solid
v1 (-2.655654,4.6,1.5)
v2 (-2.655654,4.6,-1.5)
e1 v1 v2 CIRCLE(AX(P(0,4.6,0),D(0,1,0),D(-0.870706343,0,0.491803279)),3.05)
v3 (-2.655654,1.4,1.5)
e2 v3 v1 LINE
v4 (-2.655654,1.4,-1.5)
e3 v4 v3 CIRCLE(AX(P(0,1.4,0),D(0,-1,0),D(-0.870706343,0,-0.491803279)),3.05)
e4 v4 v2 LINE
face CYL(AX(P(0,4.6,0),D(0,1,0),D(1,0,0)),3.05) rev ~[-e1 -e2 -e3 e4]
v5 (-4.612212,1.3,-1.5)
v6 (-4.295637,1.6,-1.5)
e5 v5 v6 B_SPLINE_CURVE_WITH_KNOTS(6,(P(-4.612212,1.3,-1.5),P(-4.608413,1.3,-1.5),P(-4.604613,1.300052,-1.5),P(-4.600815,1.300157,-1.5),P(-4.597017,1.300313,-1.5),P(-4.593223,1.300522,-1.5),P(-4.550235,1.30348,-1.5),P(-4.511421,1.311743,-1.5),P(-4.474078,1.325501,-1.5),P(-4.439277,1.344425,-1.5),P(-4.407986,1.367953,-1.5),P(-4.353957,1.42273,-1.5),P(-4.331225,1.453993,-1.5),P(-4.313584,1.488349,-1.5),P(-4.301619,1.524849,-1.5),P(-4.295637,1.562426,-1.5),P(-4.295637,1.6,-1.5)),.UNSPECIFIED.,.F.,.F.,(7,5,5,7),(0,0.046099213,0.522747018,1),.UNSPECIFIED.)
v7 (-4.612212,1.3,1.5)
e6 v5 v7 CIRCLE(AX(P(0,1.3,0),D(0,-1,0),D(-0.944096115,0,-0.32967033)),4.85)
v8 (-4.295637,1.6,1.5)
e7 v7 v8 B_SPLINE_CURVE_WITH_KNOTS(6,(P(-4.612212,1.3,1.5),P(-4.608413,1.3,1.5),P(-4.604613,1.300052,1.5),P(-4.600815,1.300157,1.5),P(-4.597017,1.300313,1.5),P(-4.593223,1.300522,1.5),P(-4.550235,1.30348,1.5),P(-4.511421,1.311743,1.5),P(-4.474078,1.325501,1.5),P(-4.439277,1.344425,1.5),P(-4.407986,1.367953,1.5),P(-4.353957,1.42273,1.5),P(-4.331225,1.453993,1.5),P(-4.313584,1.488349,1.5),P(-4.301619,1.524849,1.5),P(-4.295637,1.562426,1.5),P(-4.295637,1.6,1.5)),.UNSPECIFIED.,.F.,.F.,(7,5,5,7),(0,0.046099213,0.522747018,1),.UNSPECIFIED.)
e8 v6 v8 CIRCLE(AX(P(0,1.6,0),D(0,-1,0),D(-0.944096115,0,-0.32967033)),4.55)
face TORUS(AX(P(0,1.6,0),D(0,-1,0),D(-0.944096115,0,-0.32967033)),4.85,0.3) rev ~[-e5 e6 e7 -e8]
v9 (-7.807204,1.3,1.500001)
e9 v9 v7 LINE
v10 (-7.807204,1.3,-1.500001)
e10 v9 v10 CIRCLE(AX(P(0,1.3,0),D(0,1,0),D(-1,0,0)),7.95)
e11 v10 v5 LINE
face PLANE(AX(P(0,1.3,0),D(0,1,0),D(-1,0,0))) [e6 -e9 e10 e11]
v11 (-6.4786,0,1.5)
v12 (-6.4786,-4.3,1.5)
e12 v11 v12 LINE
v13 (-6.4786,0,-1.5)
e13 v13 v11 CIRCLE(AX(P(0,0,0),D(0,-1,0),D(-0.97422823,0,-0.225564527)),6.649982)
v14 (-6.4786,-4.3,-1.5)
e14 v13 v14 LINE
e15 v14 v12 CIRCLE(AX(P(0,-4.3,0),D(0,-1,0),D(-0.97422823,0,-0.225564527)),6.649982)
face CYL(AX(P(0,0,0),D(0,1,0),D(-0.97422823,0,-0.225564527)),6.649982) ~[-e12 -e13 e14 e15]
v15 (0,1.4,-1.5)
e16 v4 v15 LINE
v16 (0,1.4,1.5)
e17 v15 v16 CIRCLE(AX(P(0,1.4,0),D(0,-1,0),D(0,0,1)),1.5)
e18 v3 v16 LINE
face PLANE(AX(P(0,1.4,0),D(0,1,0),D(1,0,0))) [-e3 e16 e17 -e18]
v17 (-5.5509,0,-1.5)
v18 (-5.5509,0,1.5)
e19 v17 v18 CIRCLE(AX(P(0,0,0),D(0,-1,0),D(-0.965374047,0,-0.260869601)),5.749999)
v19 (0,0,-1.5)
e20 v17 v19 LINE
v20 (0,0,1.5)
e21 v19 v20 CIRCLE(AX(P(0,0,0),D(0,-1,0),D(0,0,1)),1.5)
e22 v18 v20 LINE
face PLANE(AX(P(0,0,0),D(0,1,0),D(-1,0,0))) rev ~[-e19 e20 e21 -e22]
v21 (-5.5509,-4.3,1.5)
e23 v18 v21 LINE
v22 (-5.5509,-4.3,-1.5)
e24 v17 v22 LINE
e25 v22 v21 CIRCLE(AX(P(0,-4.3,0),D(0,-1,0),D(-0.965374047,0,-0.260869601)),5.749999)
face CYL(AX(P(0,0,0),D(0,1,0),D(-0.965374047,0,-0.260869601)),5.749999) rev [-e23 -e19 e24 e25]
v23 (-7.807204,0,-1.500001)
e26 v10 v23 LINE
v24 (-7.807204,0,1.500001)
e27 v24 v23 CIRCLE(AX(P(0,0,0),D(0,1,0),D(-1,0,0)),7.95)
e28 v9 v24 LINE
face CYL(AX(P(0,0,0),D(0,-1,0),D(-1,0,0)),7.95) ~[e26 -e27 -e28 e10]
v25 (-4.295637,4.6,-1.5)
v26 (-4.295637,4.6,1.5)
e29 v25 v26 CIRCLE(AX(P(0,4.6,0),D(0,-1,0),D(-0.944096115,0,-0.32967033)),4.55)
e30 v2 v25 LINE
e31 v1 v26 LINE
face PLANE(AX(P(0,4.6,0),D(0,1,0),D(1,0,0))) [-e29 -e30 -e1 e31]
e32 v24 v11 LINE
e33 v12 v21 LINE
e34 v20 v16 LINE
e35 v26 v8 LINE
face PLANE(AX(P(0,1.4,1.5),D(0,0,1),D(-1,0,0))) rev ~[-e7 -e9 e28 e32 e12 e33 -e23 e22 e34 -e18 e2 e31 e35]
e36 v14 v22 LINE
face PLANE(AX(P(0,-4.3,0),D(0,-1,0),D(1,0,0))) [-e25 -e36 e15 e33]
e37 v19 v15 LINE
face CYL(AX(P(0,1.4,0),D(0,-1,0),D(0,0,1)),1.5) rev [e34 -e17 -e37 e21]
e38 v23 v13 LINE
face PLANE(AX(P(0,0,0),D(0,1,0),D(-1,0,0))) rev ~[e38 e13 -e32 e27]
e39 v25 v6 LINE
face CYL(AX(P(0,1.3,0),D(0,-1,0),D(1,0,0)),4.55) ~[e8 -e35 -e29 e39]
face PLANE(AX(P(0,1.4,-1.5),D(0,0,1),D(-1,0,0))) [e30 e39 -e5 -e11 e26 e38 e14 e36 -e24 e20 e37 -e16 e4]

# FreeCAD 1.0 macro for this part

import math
import FreeCAD as App
import Part
import Sketcher
from FreeCAD import Vector
Q = App.Units.Quantity


def edges_at(feature, points):
    """Names of the edges that pass closest to the given points."""
    edges = feature.Shape.Edges
    near = lambda p: min(range(len(edges)), key=lambda i: edges[i].distToShape(Part.Vertex(*p))[0])
    return sorted({f"Edge{near(p) + 1}" for p in points})

doc = App.newDocument("Part")
body = doc.addObject("PartDesign::Body", "Body")

sketch1 = doc.addObject("Sketcher::SketchObject", "Sketch")
body.addObject(sketch1)
sketch1.AttachmentSupport = (doc.XZ_Plane, [""])
sketch1.MapMode = "FlatFace"
sketch1.addGeometry(Part.Circle(Vector(0, 0, 0), Vector(0, 0, 1), 8), False)
sketch1.addConstraint([
    Sketcher.Constraint("Coincident", 0, 3, -1, 1),
    Sketcher.Constraint("Diameter", 0, Q("15.9 mm")),
])
pad1 = doc.addObject("PartDesign::Pad", "Pad")
body.addObject(pad1)
pad1.Profile = sketch1
pad1.Length = 1.3
pad1.Reversed = True

sketch2 = doc.addObject("Sketcher::SketchObject", "Sketch001")
body.addObject(sketch2)
sketch2.AttachmentSupport = (doc.XZ_Plane, [""])
sketch2.MapMode = "FlatFace"
sketch2.AttachmentOffset = App.Placement(Vector(0, 0, -1.3), App.Rotation())
sketch2.addGeometry(Part.Circle(Vector(0, 0, 0), Vector(0, 0, 1), 4.5), False)
sketch2.addConstraint([
    Sketcher.Constraint("Coincident", 0, 3, -1, 1),
    Sketcher.Constraint("Diameter", 0, Q("9.1 mm")),
])
pad2 = doc.addObject("PartDesign::Pad", "Pad001")
body.addObject(pad2)
pad2.Profile = sketch2
pad2.Length = 3.3
pad2.Reversed = True

sketch3 = doc.addObject("Sketcher::SketchObject", "Sketch002")
body.addObject(sketch3)
sketch3.AttachmentSupport = (doc.XZ_Plane, [""])
sketch3.MapMode = "FlatFace"
sketch3.AttachmentOffset = App.Placement(Vector(0, 0, -4.6), App.Rotation())
sketch3.addGeometry(Part.Circle(Vector(0, 0, 0), Vector(0, 0, 1), 3), False)
sketch3.addConstraint([
    Sketcher.Constraint("Coincident", 0, 3, -1, 1),
    Sketcher.Constraint("Diameter", 0, Q("6.1 mm")),
])
pocket1 = doc.addObject("PartDesign::Pocket", "Pocket")
body.addObject(pocket1)
pocket1.Profile = sketch3
pocket1.Length = 3.2
pocket1.Reversed = True

sketch4 = doc.addObject("Sketcher::SketchObject", "Sketch003")
body.addObject(sketch4)
sketch4.AttachmentSupport = (doc.XZ_Plane, [""])
sketch4.MapMode = "FlatFace"
sketch4.AttachmentOffset = App.Placement(Vector(0, 0, -1.4), App.Rotation())
sketch4.addGeometry([
    Part.LineSegment(Vector(-7.8, 1.5, 0), Vector(0, 1.5, 0)),
    Part.ArcOfCircle(Part.Circle(Vector(0, 0, 0), Vector(0, 0, 1), 1.5), math.radians(-90), math.radians(90)),
    Part.LineSegment(Vector(0, -1.5, 0), Vector(-7.8, -1.5, 0)),
    Part.ArcOfCircle(Part.Circle(Vector(0, 0, 0), Vector(0, 0, 1), 8), math.radians(169), math.radians(191)),
], False)
sketch4.addConstraint([
    Sketcher.Constraint("Tangent", 0, 2, 1, 2),
    Sketcher.Constraint("Tangent", 1, 1, 2, 1),
    Sketcher.Constraint("Coincident", 2, 2, 3, 2),
    Sketcher.Constraint("Coincident", 3, 1, 0, 1),
    Sketcher.Constraint("Horizontal", 0),
    Sketcher.Constraint("Horizontal", 2),
    Sketcher.Constraint("Coincident", 1, 3, -1, 1),
    Sketcher.Constraint("Coincident", 3, 3, -1, 1),
    Sketcher.Constraint("Radius", 1, Q("1.5 mm")),
    Sketcher.Constraint("Radius", 3, Q("7.95 mm")),
])
pocket2 = doc.addObject("PartDesign::Pocket", "Pocket001")
body.addObject(pocket2)
pocket2.Profile = sketch4
pocket2.Type = "ThroughAll"
pocket2.Midplane = True
doc.recompute()

fillet = doc.addObject("PartDesign::Fillet", "Fillet")
body.addObject(fillet)
fillet.Base = (pocket2, edges_at(pocket2, [(4.55, 1.3, 0)]))
fillet.Radius = 0.3

sketch5 = doc.addObject("Sketcher::SketchObject", "Sketch004")
body.addObject(sketch5)
sketch5.AttachmentSupport = (doc.XZ_Plane, [""])
sketch5.MapMode = "FlatFace"
sketch5.addGeometry([
    Part.LineSegment(Vector(-5.6, -1.5, 0), Vector(-6.5, -1.5, 0)),
    Part.ArcOfCircle(Part.Circle(Vector(0, 0, 0), Vector(0, 0, 1), 6.6), math.radians(-167), math.radians(167)),
    Part.LineSegment(Vector(-6.5, 1.5, 0), Vector(-5.6, 1.5, 0)),
    Part.ArcOfCircle(Part.Circle(Vector(0, 0, 0), Vector(0, 0, 1), 5.7), math.radians(-165), math.radians(165)),
], False)
sketch5.addConstraint([
    Sketcher.Constraint("Coincident", 0, 2, 1, 1),
    Sketcher.Constraint("Coincident", 1, 2, 2, 1),
    Sketcher.Constraint("Coincident", 2, 2, 3, 2),
    Sketcher.Constraint("Coincident", 3, 1, 0, 1),
    Sketcher.Constraint("Horizontal", 0),
    Sketcher.Constraint("Horizontal", 2),
    Sketcher.Constraint("Coincident", 1, 3, -1, 1),
    Sketcher.Constraint("Coincident", 3, 3, -1, 1),
    Sketcher.Constraint("Vertical", 0, 2, 1, 2),
    Sketcher.Constraint("Radius", 1, Q("6.65 mm")),
    Sketcher.Constraint("Radius", 3, Q("5.75 mm")),
    Sketcher.Constraint("DistanceY", 0, 2, 1, 2, Q("3 mm")),
])
pad3 = doc.addObject("PartDesign::Pad", "Pad002")
body.addObject(pad3)
pad3.Profile = sketch5
pad3.Length = 4.3

doc.recompute()
